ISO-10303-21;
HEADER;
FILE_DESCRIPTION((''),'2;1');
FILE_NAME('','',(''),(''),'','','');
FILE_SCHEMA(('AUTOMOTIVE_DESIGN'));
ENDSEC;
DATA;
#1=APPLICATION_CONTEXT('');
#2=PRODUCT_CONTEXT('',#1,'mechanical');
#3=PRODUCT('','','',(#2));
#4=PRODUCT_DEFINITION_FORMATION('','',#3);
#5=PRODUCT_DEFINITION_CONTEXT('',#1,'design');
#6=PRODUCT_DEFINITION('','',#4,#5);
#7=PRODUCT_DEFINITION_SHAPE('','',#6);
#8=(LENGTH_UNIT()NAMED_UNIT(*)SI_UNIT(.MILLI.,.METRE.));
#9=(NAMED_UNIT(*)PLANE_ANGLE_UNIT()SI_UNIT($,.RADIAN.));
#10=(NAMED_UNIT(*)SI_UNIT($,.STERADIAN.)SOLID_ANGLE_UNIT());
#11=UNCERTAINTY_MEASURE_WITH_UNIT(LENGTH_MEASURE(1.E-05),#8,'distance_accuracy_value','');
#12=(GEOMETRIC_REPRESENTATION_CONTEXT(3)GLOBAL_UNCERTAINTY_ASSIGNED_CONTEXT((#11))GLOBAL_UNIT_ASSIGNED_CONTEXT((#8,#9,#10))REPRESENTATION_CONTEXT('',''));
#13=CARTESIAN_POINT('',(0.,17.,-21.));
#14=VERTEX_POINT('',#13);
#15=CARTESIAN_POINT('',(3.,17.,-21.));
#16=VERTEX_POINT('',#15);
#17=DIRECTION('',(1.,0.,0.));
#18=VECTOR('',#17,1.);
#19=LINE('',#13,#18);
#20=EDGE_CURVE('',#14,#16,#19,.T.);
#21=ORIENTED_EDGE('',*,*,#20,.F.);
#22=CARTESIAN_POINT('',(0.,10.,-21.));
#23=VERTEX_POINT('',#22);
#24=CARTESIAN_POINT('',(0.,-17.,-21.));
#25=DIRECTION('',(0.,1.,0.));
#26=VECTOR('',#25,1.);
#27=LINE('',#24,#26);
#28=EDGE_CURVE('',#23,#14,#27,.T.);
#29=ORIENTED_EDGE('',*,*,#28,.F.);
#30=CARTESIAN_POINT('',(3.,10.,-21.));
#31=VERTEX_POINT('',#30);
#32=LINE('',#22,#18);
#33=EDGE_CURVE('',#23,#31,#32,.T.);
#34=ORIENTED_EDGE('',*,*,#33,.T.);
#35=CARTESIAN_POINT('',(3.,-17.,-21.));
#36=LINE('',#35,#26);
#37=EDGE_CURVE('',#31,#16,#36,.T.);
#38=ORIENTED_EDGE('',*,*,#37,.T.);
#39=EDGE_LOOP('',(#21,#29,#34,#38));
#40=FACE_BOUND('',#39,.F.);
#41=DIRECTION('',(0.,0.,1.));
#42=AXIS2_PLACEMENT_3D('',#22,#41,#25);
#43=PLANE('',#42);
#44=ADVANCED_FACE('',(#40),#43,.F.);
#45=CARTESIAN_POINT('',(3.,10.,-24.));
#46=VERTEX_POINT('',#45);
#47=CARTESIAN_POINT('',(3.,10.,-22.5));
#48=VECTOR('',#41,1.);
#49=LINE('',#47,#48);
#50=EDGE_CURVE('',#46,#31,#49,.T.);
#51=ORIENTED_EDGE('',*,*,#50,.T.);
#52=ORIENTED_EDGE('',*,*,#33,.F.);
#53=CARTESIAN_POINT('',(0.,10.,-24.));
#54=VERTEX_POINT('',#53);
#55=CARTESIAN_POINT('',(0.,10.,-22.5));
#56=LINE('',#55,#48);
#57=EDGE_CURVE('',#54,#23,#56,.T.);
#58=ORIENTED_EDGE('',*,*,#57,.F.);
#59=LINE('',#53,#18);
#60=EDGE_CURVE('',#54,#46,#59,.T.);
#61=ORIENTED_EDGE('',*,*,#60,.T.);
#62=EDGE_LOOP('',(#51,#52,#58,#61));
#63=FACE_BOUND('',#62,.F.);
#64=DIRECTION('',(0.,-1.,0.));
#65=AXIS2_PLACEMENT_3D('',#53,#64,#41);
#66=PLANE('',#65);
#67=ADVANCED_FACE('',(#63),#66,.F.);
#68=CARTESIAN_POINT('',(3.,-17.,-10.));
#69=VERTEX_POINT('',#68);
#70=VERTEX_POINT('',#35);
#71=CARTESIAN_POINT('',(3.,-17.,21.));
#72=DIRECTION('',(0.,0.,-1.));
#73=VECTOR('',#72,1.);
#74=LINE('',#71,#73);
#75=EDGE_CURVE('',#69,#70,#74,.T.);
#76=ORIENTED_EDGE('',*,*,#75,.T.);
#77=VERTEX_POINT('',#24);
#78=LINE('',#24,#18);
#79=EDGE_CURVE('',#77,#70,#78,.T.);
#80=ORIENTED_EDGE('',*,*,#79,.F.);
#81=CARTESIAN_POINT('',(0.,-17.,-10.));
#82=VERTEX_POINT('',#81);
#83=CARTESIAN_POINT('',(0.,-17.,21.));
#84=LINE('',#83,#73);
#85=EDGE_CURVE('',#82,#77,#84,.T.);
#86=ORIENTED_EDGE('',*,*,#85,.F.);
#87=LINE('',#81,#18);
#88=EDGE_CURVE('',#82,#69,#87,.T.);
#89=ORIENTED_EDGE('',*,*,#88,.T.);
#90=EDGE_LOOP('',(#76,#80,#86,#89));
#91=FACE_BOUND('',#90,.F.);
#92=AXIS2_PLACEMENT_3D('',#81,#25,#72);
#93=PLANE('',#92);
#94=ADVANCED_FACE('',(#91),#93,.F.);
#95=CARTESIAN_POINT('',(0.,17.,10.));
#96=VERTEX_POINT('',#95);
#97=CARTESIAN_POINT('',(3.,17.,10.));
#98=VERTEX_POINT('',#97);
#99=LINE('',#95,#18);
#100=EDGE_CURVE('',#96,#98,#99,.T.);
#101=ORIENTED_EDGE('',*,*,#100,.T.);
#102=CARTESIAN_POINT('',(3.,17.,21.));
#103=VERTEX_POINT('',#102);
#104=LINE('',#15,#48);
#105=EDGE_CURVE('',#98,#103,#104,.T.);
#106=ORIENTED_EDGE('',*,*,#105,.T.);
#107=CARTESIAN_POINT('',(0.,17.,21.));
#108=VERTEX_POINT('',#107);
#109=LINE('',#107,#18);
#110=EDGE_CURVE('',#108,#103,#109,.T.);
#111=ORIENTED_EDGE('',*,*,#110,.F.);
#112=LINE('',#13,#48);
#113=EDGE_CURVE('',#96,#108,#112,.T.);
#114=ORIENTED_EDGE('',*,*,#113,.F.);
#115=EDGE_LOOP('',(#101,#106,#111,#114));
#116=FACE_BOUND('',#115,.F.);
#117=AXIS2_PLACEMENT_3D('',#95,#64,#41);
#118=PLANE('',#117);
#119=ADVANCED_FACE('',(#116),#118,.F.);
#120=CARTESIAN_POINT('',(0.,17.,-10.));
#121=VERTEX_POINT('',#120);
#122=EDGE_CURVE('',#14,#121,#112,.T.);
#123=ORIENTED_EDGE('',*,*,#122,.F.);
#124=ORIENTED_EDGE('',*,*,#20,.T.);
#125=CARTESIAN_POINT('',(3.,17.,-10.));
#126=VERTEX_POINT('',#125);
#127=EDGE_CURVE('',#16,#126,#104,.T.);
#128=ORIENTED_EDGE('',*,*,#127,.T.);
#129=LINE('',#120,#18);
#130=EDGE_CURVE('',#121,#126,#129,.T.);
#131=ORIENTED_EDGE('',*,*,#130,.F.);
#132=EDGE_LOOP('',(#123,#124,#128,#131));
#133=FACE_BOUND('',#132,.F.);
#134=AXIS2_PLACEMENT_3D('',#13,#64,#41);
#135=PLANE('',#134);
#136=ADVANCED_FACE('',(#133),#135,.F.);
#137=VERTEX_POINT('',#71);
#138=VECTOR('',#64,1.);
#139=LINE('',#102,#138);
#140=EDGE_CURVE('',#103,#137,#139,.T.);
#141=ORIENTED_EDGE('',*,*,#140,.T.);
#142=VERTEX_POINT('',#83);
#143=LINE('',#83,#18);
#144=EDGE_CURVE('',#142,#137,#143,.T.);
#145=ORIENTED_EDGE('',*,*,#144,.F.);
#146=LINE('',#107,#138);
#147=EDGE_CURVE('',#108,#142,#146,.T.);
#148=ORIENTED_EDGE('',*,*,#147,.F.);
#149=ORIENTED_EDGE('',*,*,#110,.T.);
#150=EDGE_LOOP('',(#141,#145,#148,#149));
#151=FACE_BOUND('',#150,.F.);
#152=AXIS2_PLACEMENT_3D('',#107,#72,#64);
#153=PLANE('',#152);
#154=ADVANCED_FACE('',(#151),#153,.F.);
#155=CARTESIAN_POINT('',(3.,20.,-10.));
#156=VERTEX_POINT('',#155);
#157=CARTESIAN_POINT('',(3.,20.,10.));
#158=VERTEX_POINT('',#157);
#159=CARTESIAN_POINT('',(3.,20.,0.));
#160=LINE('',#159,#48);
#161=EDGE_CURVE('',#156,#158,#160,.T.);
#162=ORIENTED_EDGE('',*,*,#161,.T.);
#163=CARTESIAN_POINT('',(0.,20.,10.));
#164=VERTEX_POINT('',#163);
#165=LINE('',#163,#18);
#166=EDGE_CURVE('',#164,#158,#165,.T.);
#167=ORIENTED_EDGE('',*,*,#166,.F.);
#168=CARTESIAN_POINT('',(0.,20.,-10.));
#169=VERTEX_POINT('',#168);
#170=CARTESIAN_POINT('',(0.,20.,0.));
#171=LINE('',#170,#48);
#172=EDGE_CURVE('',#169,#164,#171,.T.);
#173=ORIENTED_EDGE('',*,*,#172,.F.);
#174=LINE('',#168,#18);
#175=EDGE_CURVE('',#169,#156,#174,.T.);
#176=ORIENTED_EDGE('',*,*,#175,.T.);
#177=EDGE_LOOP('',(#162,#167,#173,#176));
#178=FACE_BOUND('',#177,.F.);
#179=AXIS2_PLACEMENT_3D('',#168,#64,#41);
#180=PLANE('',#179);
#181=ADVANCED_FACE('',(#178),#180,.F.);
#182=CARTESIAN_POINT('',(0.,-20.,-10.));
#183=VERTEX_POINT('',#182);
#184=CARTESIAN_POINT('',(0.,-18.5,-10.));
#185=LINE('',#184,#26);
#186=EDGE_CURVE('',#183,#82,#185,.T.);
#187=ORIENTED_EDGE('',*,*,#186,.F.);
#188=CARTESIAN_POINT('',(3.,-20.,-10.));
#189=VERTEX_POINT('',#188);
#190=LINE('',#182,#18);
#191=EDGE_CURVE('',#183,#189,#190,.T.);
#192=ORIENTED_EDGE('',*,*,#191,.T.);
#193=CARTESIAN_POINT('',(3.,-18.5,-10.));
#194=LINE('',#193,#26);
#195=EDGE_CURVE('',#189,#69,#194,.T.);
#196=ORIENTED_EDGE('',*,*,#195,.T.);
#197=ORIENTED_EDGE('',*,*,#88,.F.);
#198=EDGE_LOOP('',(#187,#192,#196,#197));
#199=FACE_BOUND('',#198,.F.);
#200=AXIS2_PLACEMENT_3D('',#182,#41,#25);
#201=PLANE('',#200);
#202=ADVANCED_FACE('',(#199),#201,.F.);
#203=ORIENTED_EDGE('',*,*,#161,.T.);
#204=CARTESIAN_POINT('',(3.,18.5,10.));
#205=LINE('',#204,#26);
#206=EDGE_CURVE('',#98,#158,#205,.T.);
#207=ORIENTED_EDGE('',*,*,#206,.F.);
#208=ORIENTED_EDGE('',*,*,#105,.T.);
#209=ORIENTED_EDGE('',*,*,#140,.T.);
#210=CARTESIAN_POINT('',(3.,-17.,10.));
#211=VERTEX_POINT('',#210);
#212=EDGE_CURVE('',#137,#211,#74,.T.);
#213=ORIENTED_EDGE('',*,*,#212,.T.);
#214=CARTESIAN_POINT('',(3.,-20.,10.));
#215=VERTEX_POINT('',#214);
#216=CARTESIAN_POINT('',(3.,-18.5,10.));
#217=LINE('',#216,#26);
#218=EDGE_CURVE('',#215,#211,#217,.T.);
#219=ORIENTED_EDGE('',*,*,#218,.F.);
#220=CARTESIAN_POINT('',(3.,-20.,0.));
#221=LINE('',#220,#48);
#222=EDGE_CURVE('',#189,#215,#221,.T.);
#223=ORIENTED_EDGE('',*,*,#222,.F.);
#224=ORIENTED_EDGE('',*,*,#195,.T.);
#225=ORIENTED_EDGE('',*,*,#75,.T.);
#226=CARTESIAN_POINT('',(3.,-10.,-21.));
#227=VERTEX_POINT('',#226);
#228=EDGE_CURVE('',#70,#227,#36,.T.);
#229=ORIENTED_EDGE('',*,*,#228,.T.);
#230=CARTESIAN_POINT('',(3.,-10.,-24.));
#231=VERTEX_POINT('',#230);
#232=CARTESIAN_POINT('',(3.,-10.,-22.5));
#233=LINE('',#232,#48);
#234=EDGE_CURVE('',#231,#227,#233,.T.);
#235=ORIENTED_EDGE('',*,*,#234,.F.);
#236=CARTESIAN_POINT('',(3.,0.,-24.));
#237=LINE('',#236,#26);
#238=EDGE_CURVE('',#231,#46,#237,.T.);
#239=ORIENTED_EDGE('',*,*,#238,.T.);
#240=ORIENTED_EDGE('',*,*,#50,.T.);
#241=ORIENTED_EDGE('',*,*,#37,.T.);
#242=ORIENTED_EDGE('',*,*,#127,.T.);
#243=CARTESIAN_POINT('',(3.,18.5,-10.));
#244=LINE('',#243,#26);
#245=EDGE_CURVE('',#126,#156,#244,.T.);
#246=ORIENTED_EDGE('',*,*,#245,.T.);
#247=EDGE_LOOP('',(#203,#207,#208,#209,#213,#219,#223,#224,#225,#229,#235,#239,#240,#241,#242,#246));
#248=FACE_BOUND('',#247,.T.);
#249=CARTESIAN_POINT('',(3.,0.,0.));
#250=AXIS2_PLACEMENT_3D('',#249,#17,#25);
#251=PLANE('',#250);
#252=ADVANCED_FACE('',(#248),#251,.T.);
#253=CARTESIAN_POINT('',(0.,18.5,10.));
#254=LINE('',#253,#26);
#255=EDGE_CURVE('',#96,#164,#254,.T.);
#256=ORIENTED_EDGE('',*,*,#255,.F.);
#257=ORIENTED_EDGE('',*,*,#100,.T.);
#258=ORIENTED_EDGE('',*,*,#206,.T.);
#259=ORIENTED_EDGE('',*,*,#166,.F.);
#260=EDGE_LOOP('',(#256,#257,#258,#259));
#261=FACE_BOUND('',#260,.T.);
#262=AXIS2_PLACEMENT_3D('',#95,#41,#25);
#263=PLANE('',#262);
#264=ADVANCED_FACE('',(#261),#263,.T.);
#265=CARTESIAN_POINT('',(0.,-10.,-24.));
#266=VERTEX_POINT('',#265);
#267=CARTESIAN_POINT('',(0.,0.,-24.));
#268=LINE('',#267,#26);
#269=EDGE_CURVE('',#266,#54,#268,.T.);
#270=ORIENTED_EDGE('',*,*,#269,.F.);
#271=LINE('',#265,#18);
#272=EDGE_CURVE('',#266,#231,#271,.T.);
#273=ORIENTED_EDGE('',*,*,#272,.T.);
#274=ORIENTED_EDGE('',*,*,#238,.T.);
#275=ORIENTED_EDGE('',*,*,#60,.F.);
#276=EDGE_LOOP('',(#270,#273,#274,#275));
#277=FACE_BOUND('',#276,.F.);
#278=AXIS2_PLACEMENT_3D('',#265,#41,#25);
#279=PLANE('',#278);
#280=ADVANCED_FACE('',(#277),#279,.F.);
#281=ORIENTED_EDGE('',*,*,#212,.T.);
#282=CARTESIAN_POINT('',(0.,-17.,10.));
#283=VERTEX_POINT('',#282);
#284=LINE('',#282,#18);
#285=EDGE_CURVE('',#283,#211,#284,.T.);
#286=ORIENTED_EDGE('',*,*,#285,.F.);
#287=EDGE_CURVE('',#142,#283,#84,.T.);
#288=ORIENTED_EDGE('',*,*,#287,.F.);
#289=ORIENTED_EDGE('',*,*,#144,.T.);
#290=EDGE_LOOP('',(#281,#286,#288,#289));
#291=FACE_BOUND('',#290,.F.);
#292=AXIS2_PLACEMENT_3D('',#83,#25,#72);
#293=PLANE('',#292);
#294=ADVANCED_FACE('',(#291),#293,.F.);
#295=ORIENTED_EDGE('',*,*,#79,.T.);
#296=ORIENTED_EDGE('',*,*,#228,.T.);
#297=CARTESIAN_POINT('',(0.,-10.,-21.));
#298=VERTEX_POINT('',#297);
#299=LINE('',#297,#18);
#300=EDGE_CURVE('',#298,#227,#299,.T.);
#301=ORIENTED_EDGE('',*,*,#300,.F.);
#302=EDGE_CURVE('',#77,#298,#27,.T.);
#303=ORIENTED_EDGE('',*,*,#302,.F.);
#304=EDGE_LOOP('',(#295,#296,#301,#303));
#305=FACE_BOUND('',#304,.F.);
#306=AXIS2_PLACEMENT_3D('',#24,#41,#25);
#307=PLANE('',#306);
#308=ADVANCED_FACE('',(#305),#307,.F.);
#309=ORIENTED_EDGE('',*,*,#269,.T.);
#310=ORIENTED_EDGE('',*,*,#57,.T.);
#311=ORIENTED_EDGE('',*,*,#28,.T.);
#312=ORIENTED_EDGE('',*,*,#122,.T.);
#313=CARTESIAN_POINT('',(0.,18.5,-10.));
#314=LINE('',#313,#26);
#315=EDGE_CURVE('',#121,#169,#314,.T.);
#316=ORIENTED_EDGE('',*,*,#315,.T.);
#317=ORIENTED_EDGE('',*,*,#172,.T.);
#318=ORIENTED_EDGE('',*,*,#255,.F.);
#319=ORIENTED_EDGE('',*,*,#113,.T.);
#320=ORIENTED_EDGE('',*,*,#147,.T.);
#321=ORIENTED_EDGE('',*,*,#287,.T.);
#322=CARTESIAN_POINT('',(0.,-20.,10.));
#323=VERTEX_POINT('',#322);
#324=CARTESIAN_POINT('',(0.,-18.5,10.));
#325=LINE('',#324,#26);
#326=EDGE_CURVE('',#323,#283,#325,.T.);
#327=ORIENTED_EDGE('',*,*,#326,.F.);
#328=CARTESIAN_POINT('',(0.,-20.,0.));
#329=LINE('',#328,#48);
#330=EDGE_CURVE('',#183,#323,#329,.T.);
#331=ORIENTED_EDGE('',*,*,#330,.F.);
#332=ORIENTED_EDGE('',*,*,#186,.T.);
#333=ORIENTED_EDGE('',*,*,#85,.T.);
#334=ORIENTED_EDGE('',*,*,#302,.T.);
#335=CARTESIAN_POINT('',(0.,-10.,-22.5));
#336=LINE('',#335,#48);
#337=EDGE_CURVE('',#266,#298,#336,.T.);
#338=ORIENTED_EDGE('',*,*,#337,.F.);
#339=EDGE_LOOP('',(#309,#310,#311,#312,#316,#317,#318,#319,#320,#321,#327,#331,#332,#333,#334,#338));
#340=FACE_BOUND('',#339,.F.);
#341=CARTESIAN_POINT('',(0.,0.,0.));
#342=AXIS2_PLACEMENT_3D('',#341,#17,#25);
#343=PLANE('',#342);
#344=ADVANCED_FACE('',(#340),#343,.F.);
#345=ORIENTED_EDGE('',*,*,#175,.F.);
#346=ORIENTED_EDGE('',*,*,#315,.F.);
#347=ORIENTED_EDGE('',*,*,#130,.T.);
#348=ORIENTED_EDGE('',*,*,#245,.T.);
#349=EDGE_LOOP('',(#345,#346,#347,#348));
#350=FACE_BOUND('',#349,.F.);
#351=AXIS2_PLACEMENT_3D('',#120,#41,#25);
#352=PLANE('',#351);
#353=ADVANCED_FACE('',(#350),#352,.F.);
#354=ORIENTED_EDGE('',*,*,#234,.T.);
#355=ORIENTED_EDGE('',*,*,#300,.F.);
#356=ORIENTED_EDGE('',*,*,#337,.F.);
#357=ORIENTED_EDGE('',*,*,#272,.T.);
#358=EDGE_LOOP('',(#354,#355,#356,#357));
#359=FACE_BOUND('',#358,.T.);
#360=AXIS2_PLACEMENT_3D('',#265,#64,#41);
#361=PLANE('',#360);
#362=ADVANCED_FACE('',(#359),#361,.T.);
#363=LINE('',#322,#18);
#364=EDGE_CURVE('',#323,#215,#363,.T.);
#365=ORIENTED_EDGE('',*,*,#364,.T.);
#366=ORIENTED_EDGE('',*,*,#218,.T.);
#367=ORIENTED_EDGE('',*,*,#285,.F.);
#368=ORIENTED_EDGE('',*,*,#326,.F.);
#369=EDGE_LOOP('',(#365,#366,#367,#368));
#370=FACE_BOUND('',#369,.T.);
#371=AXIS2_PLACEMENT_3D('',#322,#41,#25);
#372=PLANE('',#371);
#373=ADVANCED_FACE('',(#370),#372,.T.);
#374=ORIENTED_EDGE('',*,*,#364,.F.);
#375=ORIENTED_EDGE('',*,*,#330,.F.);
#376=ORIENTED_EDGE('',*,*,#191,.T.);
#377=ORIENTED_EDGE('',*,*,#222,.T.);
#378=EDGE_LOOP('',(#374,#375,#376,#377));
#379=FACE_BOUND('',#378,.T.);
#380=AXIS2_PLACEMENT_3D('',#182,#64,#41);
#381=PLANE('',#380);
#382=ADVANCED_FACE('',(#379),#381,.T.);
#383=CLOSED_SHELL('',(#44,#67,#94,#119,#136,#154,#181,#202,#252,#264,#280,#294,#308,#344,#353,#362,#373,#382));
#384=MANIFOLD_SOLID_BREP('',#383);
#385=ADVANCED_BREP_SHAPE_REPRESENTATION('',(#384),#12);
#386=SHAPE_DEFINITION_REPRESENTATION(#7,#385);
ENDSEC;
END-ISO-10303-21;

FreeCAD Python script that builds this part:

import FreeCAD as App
import Part
import Sketcher

V = App.Vector

doc = App.newDocument("Part")
params = doc.addObject("Spreadsheet::Sheet", "Params")
for row, (alias, value) in enumerate([
    ("sketch1_width", "34 mm"),
    ("sketch1_width2", "3 mm"),
    ("sketch1_width3", "7 mm"),
    ("sketch1_height", "11 mm"),
    ("pad1_length", "3 mm"),
], start=1):
    params.set(f"A{row}", alias)
    params.set(f"B{row}", "=" + value)
    params.setAlias(f"B{row}", alias)

body = doc.addObject("PartDesign::Body", "Body")

# Sketch on YZ plane
sketch1 = body.newObject("Sketcher::SketchObject", "Sketch")
sketch1.AttachmentSupport = (doc.getObject("YZ_Plane"), [""])
sketch1.MapMode = "FlatFace"
sketch1.addGeometry([
    Part.LineSegment(V(17, 21, 0), V(-17, 21, 0)),  # 0
    Part.LineSegment(V(-17, 21, 0), V(-17, 10, 0)),  # 1
    Part.LineSegment(V(-17, 10, 0), V(-20, 10, 0)),  # 2
    Part.LineSegment(V(-20, 10, 0), V(-20, -10, 0)),  # 3
    Part.LineSegment(V(-20, -10, 0), V(-17, -10, 0)),  # 4
    Part.LineSegment(V(-17, -10, 0), V(-17, -21, 0)),  # 5
    Part.LineSegment(V(-17, -21, 0), V(-10, -21, 0)),  # 6
    Part.LineSegment(V(-10, -21, 0), V(-10, -24, 0)),  # 7
    Part.LineSegment(V(-10, -24, 0), V(10, -24, 0)),  # 8
    Part.LineSegment(V(10, -24, 0), V(10, -21, 0)),  # 9
    Part.LineSegment(V(10, -21, 0), V(17, -21, 0)),  # 10
    Part.LineSegment(V(17, -21, 0), V(17, -10, 0)),  # 11
    Part.LineSegment(V(17, -10, 0), V(20, -10, 0)),  # 12
    Part.LineSegment(V(20, -10, 0), V(20, 10, 0)),  # 13
    Part.LineSegment(V(20, 10, 0), V(17, 10, 0)),  # 14
    Part.LineSegment(V(17, 10, 0), V(17, 21, 0)),  # 15
], False)
sketch1.addConstraint([
    Sketcher.Constraint("Coincident", 0, 2, 1, 1),
    Sketcher.Constraint("Coincident", 1, 2, 2, 1),
    Sketcher.Constraint("Coincident", 2, 2, 3, 1),
    Sketcher.Constraint("Coincident", 3, 2, 4, 1),
    Sketcher.Constraint("Coincident", 4, 2, 5, 1),
    Sketcher.Constraint("Coincident", 5, 2, 6, 1),
    Sketcher.Constraint("Coincident", 6, 2, 7, 1),
    Sketcher.Constraint("Coincident", 7, 2, 8, 1),
    Sketcher.Constraint("Coincident", 8, 2, 9, 1),
    Sketcher.Constraint("Coincident", 9, 2, 10, 1),
    Sketcher.Constraint("Coincident", 10, 2, 11, 1),
    Sketcher.Constraint("Coincident", 11, 2, 12, 1),
    Sketcher.Constraint("Coincident", 12, 2, 13, 1),
    Sketcher.Constraint("Coincident", 13, 2, 14, 1),
    Sketcher.Constraint("Coincident", 14, 2, 15, 1),
    Sketcher.Constraint("Coincident", 15, 2, 0, 1),
    Sketcher.Constraint("Horizontal", 0),
    Sketcher.Constraint("Vertical", 1),
    Sketcher.Constraint("Horizontal", 2),
    Sketcher.Constraint("Vertical", 3),
    Sketcher.Constraint("Horizontal", 4),
    Sketcher.Constraint("Vertical", 5),
    Sketcher.Constraint("Horizontal", 6),
    Sketcher.Constraint("Vertical", 7),
    Sketcher.Constraint("Horizontal", 8),
    Sketcher.Constraint("Vertical", 9),
    Sketcher.Constraint("Horizontal", 10),
    Sketcher.Constraint("Vertical", 11),
    Sketcher.Constraint("Horizontal", 12),
    Sketcher.Constraint("Vertical", 13),
    Sketcher.Constraint("Horizontal", 14),
    Sketcher.Constraint("Vertical", 15),
    Sketcher.Constraint("Symmetric", 0, 2, 10, 2, -1, 1),
    Sketcher.Constraint("Symmetric", 2, 2, 12, 2, -1, 1),
    Sketcher.Constraint("Symmetric", 4, 2, 14, 2, -1, 1),
    Sketcher.Constraint("Symmetric", 6, 2, 9, 2, -2),
    Sketcher.Constraint("Symmetric", 4, 2, 11, 2, -2),
    Sketcher.Constraint("Equal", 8, 3),
    Sketcher.Constraint("Equal", 14, 7),
    Sketcher.Constraint("DistanceX", 0, 2, 0, 1, 34.0),
    Sketcher.Constraint("DistanceX", 2, 2, 2, 1, 3.0),
    Sketcher.Constraint("DistanceX", 6, 1, 6, 2, 7.0),
    Sketcher.Constraint("DistanceY", 1, 2, 1, 1, 11.0),
])
sketch1.setExpression("Constraints[39]", "Params.sketch1_width")
sketch1.setExpression("Constraints[40]", "Params.sketch1_width2")
sketch1.setExpression("Constraints[41]", "Params.sketch1_width3")
sketch1.setExpression("Constraints[42]", "Params.sketch1_height")
pad1 = body.newObject("PartDesign::Pad", "Pad")
pad1.Profile = sketch1
pad1.setExpression("Length", "Params.pad1_length")

doc.recompute()
